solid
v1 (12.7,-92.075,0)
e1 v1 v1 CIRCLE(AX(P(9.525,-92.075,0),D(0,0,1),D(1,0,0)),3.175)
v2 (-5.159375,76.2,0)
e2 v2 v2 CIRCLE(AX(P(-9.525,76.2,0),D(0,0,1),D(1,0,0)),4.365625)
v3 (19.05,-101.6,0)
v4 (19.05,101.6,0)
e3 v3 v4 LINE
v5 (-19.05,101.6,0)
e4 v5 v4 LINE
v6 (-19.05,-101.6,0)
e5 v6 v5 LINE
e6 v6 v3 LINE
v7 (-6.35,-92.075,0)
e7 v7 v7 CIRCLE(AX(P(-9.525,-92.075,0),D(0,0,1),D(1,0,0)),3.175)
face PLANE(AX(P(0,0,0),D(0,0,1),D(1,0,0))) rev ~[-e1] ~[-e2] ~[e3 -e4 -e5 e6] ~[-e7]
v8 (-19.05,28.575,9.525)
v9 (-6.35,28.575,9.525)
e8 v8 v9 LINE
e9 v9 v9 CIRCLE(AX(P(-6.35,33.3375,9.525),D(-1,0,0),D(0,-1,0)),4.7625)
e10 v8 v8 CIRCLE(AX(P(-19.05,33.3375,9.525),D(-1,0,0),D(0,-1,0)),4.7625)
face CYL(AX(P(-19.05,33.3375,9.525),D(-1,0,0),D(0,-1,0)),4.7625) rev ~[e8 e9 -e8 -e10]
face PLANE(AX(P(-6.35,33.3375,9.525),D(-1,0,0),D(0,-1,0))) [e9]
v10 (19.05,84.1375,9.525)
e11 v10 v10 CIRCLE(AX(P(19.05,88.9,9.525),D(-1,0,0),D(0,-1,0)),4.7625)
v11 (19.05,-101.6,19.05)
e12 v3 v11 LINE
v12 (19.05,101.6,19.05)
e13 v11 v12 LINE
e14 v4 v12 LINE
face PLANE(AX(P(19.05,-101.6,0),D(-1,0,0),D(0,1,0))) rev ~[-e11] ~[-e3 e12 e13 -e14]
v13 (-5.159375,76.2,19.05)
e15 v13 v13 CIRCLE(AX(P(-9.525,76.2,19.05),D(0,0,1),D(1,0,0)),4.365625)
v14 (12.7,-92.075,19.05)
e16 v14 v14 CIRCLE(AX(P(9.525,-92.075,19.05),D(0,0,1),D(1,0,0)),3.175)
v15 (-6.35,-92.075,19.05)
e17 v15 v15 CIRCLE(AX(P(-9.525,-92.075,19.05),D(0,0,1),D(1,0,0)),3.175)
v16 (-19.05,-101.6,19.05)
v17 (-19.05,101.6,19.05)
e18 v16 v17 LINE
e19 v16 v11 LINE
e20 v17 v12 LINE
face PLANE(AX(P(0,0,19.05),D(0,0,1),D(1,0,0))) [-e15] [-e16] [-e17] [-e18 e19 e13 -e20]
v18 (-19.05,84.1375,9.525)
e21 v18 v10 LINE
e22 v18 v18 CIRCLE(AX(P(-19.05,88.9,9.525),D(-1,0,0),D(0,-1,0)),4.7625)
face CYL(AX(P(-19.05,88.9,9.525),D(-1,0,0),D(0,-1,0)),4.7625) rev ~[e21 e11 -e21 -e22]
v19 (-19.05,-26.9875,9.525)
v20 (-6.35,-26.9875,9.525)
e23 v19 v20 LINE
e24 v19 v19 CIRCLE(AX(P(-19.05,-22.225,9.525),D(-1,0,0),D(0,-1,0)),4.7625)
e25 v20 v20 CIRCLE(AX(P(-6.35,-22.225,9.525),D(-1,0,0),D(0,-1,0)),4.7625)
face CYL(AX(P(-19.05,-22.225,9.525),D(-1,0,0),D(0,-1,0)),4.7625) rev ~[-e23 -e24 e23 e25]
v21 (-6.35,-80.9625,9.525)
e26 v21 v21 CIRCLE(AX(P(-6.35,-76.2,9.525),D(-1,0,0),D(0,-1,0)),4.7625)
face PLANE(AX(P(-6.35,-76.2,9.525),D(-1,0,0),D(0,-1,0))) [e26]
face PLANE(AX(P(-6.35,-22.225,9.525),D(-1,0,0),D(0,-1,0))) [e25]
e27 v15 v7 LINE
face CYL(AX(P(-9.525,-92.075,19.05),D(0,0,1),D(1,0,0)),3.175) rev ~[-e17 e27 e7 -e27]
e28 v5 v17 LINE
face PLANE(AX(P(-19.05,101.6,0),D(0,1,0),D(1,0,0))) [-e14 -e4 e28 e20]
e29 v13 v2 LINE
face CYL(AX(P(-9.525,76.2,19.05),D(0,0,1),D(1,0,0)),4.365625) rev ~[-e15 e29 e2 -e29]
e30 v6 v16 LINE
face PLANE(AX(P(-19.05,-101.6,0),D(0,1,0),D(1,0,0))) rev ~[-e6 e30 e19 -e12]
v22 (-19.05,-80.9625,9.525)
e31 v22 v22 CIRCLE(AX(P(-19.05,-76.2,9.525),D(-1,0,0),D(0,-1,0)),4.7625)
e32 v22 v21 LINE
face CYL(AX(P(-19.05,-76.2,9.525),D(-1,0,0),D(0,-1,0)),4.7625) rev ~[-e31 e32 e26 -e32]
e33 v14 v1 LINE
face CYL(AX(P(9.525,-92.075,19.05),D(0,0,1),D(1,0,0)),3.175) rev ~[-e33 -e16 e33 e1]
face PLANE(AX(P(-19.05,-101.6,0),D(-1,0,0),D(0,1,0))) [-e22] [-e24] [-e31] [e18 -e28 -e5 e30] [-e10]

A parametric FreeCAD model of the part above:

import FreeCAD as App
import Part
import Sketcher
from FreeCAD import Vector
Q = App.Units.Quantity


def add_polygon(sketch, points):
    """Adds a closed chain of lines whose ends are joined by coincident constraints."""
    first, n = sketch.GeometryCount, len(points)
    for a, b in zip(points, points[1:] + points[:1]):
        sketch.addGeometry(Part.LineSegment(App.Vector(*a, 0), App.Vector(*b, 0)), False)
    for i in range(n):
        sketch.addConstraint(Sketcher.Constraint("Coincident", first + i, 2, first + (i + 1) % n, 1))

doc = App.newDocument("Part")
body = doc.addObject("PartDesign::Body", "Body")

# Sketch on XY plane
sketch1 = doc.addObject("Sketcher::SketchObject", "Sketch")
body.addObject(sketch1)
sketch1.AttachmentSupport = (doc.XY_Plane, [""])
sketch1.MapMode = "FlatFace"
add_polygon(sketch1, [(-19, 102), (-19, -102), (19, -102), (19, 102)])  # lines 0-3
sketch1.addConstraint([
    Sketcher.Constraint("Vertical", 0),
    Sketcher.Constraint("Horizontal", 1),
    Sketcher.Constraint("Vertical", 2),
    Sketcher.Constraint("Horizontal", 3),
    Sketcher.Constraint("Symmetric", 0, 2, 2, 2, -1, 1),
    Sketcher.Constraint("DistanceY", 0, 2, 0, 1, Q("8 in")),
    Sketcher.Constraint("DistanceX", 1, 1, 1, 2, Q("1.5 in")),
])
pad1 = doc.addObject("PartDesign::Pad", "Pad")
body.addObject(pad1)
pad1.Profile = sketch1
pad1.Length = Q("0.75 in")

# Sketch on XY plane
sketch2 = doc.addObject("Sketcher::SketchObject", "Sketch001")
body.addObject(sketch2)
sketch2.AttachmentSupport = (doc.XY_Plane, [""])
sketch2.MapMode = "FlatFace"
sketch2.AttachmentOffset = App.Placement(Vector(0, 0, 0.75 * 25.4), App.Rotation())
sketch2.addGeometry([
    Part.Circle(Vector(-9.5, -92.1, 0), Vector(0, 0, 1), 3.2),
    Part.Circle(Vector(9.5, -92.1, 0), Vector(0, 0, 1), 3.2),
], False)
sketch2.addConstraint([
    Sketcher.Constraint("Equal", 0, 1),
    Sketcher.Constraint("Symmetric", 0, 3, 1, 3, -2),
    Sketcher.Constraint("Diameter", 0, Q("0.25 in")),
    Sketcher.Constraint("DistanceX", 0, 3, 1, 3, Q("0.75 in")),
    Sketcher.Constraint("DistanceY", 0, 3, -1, 1, Q("3.625 in")),
])
pocket1 = doc.addObject("PartDesign::Pocket", "Pocket")
body.addObject(pocket1)
pocket1.Profile = sketch2
pocket1.Type = "ThroughAll"

# Sketch on XY plane
sketch3 = doc.addObject("Sketcher::SketchObject", "Sketch002")
body.addObject(sketch3)
sketch3.AttachmentSupport = (doc.XY_Plane, [""])
sketch3.MapMode = "FlatFace"
sketch3.AttachmentOffset = App.Placement(Vector(0, 0, 0.75 * 25.4), App.Rotation())
sketch3.addGeometry(Part.Circle(Vector(-9.5, 76.2, 0), Vector(0, 0, 1), 4.4), False)
sketch3.addConstraint([
    Sketcher.Constraint("Diameter", 0, Q("0.34375 in")),
    Sketcher.Constraint("DistanceY", -1, 1, 0, 3, Q("3 in")),
    Sketcher.Constraint("DistanceX", 0, 3, -1, 1, Q("0.375 in")),
])
pocket2 = doc.addObject("PartDesign::Pocket", "Pocket001")
body.addObject(pocket2)
pocket2.Profile = sketch3
pocket2.Type = "ThroughAll"

# Sketch on YZ plane
sketch4 = doc.addObject("Sketcher::SketchObject", "Sketch003")
body.addObject(sketch4)
sketch4.AttachmentSupport = (doc.YZ_Plane, [""])
sketch4.MapMode = "FlatFace"
sketch4.AttachmentOffset = App.Placement(Vector(0, 0, -0.75 * 25.4), App.Rotation())
sketch4.addGeometry(Part.Circle(Vector(88.9, 9.5, 0), Vector(0, 0, 1), 4.8), False)
sketch4.addConstraint([
    Sketcher.Constraint("Diameter", 0, Q("0.375 in")),
    Sketcher.Constraint("DistanceX", -1, 1, 0, 3, Q("3.5 in")),
    Sketcher.Constraint("DistanceY", -1, 1, 0, 3, Q("0.375 in")),
])
pocket3 = doc.addObject("PartDesign::Pocket", "Pocket002")
body.addObject(pocket3)
pocket3.Profile = sketch4
pocket3.Type = "ThroughAll"
pocket3.Reversed = True

# Sketch on YZ plane
sketch5 = doc.addObject("Sketcher::SketchObject", "Sketch004")
body.addObject(sketch5)
sketch5.AttachmentSupport = (doc.YZ_Plane, [""])
sketch5.MapMode = "FlatFace"
sketch5.AttachmentOffset = App.Placement(Vector(0, 0, -0.75 * 25.4), App.Rotation())
sketch5.addGeometry([
    Part.Circle(Vector(33.3, 9.5, 0), Vector(0, 0, 1), 4.8),
    Part.Circle(Vector(-22.2, 9.5, 0), Vector(0, 0, 1), 4.8),
    Part.Circle(Vector(-76.2, 9.5, 0), Vector(0, 0, 1), 4.8),
], False)
sketch5.addConstraint([
    Sketcher.Constraint("Equal", 0, 1),
    Sketcher.Constraint("Equal", 1, 2),
    Sketcher.Constraint("Horizontal", 0, 3, 1, 3),
    Sketcher.Constraint("Horizontal", 1, 3, 2, 3),
    Sketcher.Constraint("Diameter", 0, Q("0.375 in")),
    Sketcher.Constraint("DistanceX", 2, 3, -1, 1, Q("3 in")),
    Sketcher.Constraint("DistanceX", -1, 1, 0, 3, Q("1.3125 in")),
    Sketcher.Constraint("DistanceY", -1, 1, 0, 3, Q("0.375 in")),
    Sketcher.Constraint("DistanceX", 1, 3, -1, 1, Q("0.875 in")),
])
pocket4 = doc.addObject("PartDesign::Pocket", "Pocket003")
body.addObject(pocket4)
pocket4.Profile = sketch5
pocket4.Length = Q("0.5 in")
pocket4.Reversed = True

doc.recompute()
